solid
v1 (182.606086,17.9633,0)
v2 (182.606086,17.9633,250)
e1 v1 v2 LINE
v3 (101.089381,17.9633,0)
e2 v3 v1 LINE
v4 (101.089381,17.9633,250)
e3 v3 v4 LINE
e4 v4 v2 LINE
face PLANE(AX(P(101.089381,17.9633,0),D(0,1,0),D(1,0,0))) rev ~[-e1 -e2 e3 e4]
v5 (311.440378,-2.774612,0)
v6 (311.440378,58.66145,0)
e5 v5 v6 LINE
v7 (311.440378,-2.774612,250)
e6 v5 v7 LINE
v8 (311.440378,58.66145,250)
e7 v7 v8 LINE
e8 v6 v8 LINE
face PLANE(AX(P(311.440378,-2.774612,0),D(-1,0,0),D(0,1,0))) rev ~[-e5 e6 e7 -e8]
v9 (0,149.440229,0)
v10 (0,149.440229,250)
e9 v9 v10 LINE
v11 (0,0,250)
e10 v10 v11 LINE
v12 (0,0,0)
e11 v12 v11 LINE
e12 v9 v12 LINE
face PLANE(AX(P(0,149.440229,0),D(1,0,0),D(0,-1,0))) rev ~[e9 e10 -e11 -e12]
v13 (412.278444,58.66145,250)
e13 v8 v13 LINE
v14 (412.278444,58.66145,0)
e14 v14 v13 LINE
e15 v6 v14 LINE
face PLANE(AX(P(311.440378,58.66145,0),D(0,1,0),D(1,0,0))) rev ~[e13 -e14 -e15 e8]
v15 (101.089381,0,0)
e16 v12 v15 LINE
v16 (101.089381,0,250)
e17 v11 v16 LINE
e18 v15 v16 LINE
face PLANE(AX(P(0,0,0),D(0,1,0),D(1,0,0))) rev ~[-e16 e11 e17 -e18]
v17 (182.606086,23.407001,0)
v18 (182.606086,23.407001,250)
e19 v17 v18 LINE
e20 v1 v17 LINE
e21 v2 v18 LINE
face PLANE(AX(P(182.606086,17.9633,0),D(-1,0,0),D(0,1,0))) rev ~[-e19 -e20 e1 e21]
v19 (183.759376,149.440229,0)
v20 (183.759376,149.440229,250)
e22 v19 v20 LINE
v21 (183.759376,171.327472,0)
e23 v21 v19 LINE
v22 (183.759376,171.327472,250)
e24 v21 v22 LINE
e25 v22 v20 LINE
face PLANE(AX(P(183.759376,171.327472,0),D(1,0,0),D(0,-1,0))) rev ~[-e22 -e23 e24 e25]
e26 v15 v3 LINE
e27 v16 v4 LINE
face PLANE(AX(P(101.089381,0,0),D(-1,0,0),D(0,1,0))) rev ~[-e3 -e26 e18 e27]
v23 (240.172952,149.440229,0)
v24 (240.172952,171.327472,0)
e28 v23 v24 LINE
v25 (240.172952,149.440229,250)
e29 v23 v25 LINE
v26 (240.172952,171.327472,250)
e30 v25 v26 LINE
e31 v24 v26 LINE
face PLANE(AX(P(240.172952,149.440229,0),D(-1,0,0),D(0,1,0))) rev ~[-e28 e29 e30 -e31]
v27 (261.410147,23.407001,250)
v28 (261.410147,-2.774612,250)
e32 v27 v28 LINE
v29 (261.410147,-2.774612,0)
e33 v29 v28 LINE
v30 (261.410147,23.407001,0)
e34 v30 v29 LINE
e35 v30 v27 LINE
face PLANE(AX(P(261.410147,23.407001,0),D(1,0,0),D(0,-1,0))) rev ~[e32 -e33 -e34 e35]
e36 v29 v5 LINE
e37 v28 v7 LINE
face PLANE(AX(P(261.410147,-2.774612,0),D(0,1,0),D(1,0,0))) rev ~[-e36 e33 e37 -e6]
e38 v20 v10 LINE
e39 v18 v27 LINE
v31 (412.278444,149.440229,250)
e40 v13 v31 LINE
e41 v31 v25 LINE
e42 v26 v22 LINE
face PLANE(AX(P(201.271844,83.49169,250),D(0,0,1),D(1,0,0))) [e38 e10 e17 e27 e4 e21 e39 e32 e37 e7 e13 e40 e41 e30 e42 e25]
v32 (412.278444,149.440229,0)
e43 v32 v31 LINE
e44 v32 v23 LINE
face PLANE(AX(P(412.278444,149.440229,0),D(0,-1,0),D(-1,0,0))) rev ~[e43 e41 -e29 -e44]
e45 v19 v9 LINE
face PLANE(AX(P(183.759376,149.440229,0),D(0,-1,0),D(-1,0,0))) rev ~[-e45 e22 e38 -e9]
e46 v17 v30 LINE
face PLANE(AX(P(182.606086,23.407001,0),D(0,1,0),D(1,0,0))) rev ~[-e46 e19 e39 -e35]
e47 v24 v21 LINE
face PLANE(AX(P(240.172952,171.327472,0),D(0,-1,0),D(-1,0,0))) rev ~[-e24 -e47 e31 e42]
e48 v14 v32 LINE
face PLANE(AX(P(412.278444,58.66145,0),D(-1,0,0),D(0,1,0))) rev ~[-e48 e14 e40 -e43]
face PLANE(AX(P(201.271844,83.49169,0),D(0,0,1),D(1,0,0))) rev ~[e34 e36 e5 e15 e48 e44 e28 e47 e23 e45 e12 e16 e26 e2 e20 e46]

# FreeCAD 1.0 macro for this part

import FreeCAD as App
import Part
import Sketcher
from FreeCAD import Vector
Q = App.Units.Quantity

doc = App.newDocument("Part")
body = doc.addObject("PartDesign::Body", "Body")

sketch1 = doc.addObject("Sketcher::SketchObject", "Sketch")
body.addObject(sketch1)
sketch1.AttachmentSupport = (doc.XY_Plane, [""])
sketch1.MapMode = "FlatFace"
sketch1.addGeometry(Part.LineSegment(Vector(0, 149, 0), Vector(0, 0, 0)), False)
sketch1.addGeometry(Part.LineSegment(Vector(0, 0, 0), Vector(101, 0, 0)), False)
sketch1.addGeometry(Part.LineSegment(Vector(101, 0, 0), Vector(101, 18, 0)), False)
sketch1.addGeometry(Part.LineSegment(Vector(101, 18, 0), Vector(183, 18, 0)), False)
sketch1.addGeometry(Part.LineSegment(Vector(183, 18, 0), Vector(183, 23, 0)), False)
sketch1.addGeometry(Part.LineSegment(Vector(183, 23, 0), Vector(261, 23, 0)), False)
sketch1.addGeometry(Part.LineSegment(Vector(261, 23, 0), Vector(261, -3, 0)), False)
sketch1.addGeometry(Part.LineSegment(Vector(261, -3, 0), Vector(311, -3, 0)), False)
sketch1.addGeometry(Part.LineSegment(Vector(311, -3, 0), Vector(311, 59, 0)), False)
sketch1.addGeometry(Part.LineSegment(Vector(311, 59, 0), Vector(412, 59, 0)), False)
sketch1.addGeometry(Part.LineSegment(Vector(412, 59, 0), Vector(412, 149, 0)), False)
sketch1.addGeometry(Part.LineSegment(Vector(412, 149, 0), Vector(240, 149, 0)), False)
sketch1.addGeometry(Part.LineSegment(Vector(240, 149, 0), Vector(240, 171, 0)), False)
sketch1.addGeometry(Part.LineSegment(Vector(240, 171, 0), Vector(184, 171, 0)), False)
sketch1.addGeometry(Part.LineSegment(Vector(184, 171, 0), Vector(184, 149, 0)), False)
sketch1.addGeometry(Part.LineSegment(Vector(184, 149, 0), Vector(0, 149, 0)), False)
sketch1.addConstraint(Sketcher.Constraint("Coincident", 0, 2, 1, 1))
sketch1.addConstraint(Sketcher.Constraint("Coincident", 1, 2, 2, 1))
sketch1.addConstraint(Sketcher.Constraint("Coincident", 2, 2, 3, 1))
sketch1.addConstraint(Sketcher.Constraint("Coincident", 3, 2, 4, 1))
sketch1.addConstraint(Sketcher.Constraint("Coincident", 4, 2, 5, 1))
sketch1.addConstraint(Sketcher.Constraint("Coincident", 5, 2, 6, 1))
sketch1.addConstraint(Sketcher.Constraint("Coincident", 6, 2, 7, 1))
sketch1.addConstraint(Sketcher.Constraint("Coincident", 7, 2, 8, 1))
sketch1.addConstraint(Sketcher.Constraint("Coincident", 8, 2, 9, 1))
sketch1.addConstraint(Sketcher.Constraint("Coincident", 9, 2, 10, 1))
sketch1.addConstraint(Sketcher.Constraint("Coincident", 10, 2, 11, 1))
sketch1.addConstraint(Sketcher.Constraint("Coincident", 11, 2, 12, 1))
sketch1.addConstraint(Sketcher.Constraint("Coincident", 12, 2, 13, 1))
sketch1.addConstraint(Sketcher.Constraint("Coincident", 13, 2, 14, 1))
sketch1.addConstraint(Sketcher.Constraint("Coincident", 14, 2, 15, 1))
sketch1.addConstraint(Sketcher.Constraint("Coincident", 15, 2, 0, 1))
sketch1.addConstraint(Sketcher.Constraint("Vertical", 0))
sketch1.addConstraint(Sketcher.Constraint("Horizontal", 1))
sketch1.addConstraint(Sketcher.Constraint("Vertical", 2))
sketch1.addConstraint(Sketcher.Constraint("Horizontal", 3))
sketch1.addConstraint(Sketcher.Constraint("Vertical", 4))
sketch1.addConstraint(Sketcher.Constraint("Horizontal", 5))
sketch1.addConstraint(Sketcher.Constraint("Vertical", 6))
sketch1.addConstraint(Sketcher.Constraint("Horizontal", 7))
sketch1.addConstraint(Sketcher.Constraint("Vertical", 8))
sketch1.addConstraint(Sketcher.Constraint("Horizontal", 9))
sketch1.addConstraint(Sketcher.Constraint("Vertical", 10))
sketch1.addConstraint(Sketcher.Constraint("Horizontal", 11))
sketch1.addConstraint(Sketcher.Constraint("Vertical", 12))
sketch1.addConstraint(Sketcher.Constraint("Horizontal", 13))
sketch1.addConstraint(Sketcher.Constraint("Vertical", 14))
sketch1.addConstraint(Sketcher.Constraint("Horizontal", 15))
sketch1.addConstraint(Sketcher.Constraint("Coincident", 0, 2, -1, 1))
sketch1.addConstraint(Sketcher.Constraint("Horizontal", 11, 2, 14, 2))
sketch1.addConstraint(Sketcher.Constraint("DistanceY", 2, 1, 2, 2, Q("17.9633 mm")))
sketch1.addConstraint(Sketcher.Constraint("DistanceY", 4, 1, 4, 2, Q("5.443701 mm")))
sketch1.addConstraint(Sketcher.Constraint("DistanceX", 1, 1, 1, 2, Q("101.089381 mm")))
sketch1.addConstraint(Sketcher.Constraint("DistanceX", 5, 1, 5, 2, Q("78.804061 mm")))
sketch1.addConstraint(Sketcher.Constraint("DistanceX", 7, 1, 7, 2, Q("50.030231 mm")))
sketch1.addConstraint(Sketcher.Constraint("DistanceX", 11, 2, 11, 1, Q("172.105492 mm")))
sketch1.addConstraint(Sketcher.Constraint("DistanceY", 0, 2, 0, 1, Q("149.440229 mm")))
sketch1.addConstraint(Sketcher.Constraint("DistanceY", 10, 1, 10, 2, Q("90.778779 mm")))
sketch1.addConstraint(Sketcher.Constraint("DistanceX", 3, 1, 3, 2, Q("81.516705 mm")))
sketch1.addConstraint(Sketcher.Constraint("DistanceX", 9, 1, 9, 2, Q("100.838066 mm")))
sketch1.addConstraint(Sketcher.Constraint("DistanceX", 13, 2, 13, 1, Q("56.413576 mm")))
sketch1.addConstraint(Sketcher.Constraint("DistanceY", 6, 2, 6, 1, Q("26.181613 mm")))
sketch1.addConstraint(Sketcher.Constraint("DistanceY", 12, 1, 12, 2, Q("21.887243 mm")))
pad1 = doc.addObject("PartDesign::Pad", "Pad")
body.addObject(pad1)
pad1.Profile = sketch1
pad1.Length = 250

doc.recompute()
